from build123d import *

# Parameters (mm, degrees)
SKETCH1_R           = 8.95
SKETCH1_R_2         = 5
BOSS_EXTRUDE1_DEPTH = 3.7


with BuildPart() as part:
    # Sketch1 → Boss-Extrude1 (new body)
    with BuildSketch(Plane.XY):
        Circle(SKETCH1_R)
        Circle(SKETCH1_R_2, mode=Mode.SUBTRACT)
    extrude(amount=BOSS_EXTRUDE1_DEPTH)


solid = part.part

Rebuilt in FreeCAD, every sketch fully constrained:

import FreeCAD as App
import Part
import Sketcher

V = App.Vector
Q = App.Units.Quantity

doc = App.newDocument("Part")
body = doc.addObject("PartDesign::Body", "Body")

sketch1 = body.newObject("Sketcher::SketchObject", "Sketch")
sketch1.AttachmentSupport = (doc.getObject("XY_Plane"), [""])
sketch1.MapMode = "FlatFace"
sketch1.addGeometry([
    Part.Circle(V(0, 0, 0), V(0, 0, 1), 9),
    Part.Circle(V(0, 0, 0), V(0, 0, 1), 5),
], False)
sketch1.addConstraint([
    Sketcher.Constraint("Coincident", 0, 3, -1, 1),
    Sketcher.Constraint("Coincident", 1, 3, -1, 1),
    Sketcher.Constraint("Diameter", 1, Q("10 mm")),
    Sketcher.Constraint("Diameter", 0, Q("17.9 mm")),
])
pad1 = body.newObject("PartDesign::Pad", "Pad")
pad1.Profile = sketch1
pad1.Length = 3.7

doc.recompute()
